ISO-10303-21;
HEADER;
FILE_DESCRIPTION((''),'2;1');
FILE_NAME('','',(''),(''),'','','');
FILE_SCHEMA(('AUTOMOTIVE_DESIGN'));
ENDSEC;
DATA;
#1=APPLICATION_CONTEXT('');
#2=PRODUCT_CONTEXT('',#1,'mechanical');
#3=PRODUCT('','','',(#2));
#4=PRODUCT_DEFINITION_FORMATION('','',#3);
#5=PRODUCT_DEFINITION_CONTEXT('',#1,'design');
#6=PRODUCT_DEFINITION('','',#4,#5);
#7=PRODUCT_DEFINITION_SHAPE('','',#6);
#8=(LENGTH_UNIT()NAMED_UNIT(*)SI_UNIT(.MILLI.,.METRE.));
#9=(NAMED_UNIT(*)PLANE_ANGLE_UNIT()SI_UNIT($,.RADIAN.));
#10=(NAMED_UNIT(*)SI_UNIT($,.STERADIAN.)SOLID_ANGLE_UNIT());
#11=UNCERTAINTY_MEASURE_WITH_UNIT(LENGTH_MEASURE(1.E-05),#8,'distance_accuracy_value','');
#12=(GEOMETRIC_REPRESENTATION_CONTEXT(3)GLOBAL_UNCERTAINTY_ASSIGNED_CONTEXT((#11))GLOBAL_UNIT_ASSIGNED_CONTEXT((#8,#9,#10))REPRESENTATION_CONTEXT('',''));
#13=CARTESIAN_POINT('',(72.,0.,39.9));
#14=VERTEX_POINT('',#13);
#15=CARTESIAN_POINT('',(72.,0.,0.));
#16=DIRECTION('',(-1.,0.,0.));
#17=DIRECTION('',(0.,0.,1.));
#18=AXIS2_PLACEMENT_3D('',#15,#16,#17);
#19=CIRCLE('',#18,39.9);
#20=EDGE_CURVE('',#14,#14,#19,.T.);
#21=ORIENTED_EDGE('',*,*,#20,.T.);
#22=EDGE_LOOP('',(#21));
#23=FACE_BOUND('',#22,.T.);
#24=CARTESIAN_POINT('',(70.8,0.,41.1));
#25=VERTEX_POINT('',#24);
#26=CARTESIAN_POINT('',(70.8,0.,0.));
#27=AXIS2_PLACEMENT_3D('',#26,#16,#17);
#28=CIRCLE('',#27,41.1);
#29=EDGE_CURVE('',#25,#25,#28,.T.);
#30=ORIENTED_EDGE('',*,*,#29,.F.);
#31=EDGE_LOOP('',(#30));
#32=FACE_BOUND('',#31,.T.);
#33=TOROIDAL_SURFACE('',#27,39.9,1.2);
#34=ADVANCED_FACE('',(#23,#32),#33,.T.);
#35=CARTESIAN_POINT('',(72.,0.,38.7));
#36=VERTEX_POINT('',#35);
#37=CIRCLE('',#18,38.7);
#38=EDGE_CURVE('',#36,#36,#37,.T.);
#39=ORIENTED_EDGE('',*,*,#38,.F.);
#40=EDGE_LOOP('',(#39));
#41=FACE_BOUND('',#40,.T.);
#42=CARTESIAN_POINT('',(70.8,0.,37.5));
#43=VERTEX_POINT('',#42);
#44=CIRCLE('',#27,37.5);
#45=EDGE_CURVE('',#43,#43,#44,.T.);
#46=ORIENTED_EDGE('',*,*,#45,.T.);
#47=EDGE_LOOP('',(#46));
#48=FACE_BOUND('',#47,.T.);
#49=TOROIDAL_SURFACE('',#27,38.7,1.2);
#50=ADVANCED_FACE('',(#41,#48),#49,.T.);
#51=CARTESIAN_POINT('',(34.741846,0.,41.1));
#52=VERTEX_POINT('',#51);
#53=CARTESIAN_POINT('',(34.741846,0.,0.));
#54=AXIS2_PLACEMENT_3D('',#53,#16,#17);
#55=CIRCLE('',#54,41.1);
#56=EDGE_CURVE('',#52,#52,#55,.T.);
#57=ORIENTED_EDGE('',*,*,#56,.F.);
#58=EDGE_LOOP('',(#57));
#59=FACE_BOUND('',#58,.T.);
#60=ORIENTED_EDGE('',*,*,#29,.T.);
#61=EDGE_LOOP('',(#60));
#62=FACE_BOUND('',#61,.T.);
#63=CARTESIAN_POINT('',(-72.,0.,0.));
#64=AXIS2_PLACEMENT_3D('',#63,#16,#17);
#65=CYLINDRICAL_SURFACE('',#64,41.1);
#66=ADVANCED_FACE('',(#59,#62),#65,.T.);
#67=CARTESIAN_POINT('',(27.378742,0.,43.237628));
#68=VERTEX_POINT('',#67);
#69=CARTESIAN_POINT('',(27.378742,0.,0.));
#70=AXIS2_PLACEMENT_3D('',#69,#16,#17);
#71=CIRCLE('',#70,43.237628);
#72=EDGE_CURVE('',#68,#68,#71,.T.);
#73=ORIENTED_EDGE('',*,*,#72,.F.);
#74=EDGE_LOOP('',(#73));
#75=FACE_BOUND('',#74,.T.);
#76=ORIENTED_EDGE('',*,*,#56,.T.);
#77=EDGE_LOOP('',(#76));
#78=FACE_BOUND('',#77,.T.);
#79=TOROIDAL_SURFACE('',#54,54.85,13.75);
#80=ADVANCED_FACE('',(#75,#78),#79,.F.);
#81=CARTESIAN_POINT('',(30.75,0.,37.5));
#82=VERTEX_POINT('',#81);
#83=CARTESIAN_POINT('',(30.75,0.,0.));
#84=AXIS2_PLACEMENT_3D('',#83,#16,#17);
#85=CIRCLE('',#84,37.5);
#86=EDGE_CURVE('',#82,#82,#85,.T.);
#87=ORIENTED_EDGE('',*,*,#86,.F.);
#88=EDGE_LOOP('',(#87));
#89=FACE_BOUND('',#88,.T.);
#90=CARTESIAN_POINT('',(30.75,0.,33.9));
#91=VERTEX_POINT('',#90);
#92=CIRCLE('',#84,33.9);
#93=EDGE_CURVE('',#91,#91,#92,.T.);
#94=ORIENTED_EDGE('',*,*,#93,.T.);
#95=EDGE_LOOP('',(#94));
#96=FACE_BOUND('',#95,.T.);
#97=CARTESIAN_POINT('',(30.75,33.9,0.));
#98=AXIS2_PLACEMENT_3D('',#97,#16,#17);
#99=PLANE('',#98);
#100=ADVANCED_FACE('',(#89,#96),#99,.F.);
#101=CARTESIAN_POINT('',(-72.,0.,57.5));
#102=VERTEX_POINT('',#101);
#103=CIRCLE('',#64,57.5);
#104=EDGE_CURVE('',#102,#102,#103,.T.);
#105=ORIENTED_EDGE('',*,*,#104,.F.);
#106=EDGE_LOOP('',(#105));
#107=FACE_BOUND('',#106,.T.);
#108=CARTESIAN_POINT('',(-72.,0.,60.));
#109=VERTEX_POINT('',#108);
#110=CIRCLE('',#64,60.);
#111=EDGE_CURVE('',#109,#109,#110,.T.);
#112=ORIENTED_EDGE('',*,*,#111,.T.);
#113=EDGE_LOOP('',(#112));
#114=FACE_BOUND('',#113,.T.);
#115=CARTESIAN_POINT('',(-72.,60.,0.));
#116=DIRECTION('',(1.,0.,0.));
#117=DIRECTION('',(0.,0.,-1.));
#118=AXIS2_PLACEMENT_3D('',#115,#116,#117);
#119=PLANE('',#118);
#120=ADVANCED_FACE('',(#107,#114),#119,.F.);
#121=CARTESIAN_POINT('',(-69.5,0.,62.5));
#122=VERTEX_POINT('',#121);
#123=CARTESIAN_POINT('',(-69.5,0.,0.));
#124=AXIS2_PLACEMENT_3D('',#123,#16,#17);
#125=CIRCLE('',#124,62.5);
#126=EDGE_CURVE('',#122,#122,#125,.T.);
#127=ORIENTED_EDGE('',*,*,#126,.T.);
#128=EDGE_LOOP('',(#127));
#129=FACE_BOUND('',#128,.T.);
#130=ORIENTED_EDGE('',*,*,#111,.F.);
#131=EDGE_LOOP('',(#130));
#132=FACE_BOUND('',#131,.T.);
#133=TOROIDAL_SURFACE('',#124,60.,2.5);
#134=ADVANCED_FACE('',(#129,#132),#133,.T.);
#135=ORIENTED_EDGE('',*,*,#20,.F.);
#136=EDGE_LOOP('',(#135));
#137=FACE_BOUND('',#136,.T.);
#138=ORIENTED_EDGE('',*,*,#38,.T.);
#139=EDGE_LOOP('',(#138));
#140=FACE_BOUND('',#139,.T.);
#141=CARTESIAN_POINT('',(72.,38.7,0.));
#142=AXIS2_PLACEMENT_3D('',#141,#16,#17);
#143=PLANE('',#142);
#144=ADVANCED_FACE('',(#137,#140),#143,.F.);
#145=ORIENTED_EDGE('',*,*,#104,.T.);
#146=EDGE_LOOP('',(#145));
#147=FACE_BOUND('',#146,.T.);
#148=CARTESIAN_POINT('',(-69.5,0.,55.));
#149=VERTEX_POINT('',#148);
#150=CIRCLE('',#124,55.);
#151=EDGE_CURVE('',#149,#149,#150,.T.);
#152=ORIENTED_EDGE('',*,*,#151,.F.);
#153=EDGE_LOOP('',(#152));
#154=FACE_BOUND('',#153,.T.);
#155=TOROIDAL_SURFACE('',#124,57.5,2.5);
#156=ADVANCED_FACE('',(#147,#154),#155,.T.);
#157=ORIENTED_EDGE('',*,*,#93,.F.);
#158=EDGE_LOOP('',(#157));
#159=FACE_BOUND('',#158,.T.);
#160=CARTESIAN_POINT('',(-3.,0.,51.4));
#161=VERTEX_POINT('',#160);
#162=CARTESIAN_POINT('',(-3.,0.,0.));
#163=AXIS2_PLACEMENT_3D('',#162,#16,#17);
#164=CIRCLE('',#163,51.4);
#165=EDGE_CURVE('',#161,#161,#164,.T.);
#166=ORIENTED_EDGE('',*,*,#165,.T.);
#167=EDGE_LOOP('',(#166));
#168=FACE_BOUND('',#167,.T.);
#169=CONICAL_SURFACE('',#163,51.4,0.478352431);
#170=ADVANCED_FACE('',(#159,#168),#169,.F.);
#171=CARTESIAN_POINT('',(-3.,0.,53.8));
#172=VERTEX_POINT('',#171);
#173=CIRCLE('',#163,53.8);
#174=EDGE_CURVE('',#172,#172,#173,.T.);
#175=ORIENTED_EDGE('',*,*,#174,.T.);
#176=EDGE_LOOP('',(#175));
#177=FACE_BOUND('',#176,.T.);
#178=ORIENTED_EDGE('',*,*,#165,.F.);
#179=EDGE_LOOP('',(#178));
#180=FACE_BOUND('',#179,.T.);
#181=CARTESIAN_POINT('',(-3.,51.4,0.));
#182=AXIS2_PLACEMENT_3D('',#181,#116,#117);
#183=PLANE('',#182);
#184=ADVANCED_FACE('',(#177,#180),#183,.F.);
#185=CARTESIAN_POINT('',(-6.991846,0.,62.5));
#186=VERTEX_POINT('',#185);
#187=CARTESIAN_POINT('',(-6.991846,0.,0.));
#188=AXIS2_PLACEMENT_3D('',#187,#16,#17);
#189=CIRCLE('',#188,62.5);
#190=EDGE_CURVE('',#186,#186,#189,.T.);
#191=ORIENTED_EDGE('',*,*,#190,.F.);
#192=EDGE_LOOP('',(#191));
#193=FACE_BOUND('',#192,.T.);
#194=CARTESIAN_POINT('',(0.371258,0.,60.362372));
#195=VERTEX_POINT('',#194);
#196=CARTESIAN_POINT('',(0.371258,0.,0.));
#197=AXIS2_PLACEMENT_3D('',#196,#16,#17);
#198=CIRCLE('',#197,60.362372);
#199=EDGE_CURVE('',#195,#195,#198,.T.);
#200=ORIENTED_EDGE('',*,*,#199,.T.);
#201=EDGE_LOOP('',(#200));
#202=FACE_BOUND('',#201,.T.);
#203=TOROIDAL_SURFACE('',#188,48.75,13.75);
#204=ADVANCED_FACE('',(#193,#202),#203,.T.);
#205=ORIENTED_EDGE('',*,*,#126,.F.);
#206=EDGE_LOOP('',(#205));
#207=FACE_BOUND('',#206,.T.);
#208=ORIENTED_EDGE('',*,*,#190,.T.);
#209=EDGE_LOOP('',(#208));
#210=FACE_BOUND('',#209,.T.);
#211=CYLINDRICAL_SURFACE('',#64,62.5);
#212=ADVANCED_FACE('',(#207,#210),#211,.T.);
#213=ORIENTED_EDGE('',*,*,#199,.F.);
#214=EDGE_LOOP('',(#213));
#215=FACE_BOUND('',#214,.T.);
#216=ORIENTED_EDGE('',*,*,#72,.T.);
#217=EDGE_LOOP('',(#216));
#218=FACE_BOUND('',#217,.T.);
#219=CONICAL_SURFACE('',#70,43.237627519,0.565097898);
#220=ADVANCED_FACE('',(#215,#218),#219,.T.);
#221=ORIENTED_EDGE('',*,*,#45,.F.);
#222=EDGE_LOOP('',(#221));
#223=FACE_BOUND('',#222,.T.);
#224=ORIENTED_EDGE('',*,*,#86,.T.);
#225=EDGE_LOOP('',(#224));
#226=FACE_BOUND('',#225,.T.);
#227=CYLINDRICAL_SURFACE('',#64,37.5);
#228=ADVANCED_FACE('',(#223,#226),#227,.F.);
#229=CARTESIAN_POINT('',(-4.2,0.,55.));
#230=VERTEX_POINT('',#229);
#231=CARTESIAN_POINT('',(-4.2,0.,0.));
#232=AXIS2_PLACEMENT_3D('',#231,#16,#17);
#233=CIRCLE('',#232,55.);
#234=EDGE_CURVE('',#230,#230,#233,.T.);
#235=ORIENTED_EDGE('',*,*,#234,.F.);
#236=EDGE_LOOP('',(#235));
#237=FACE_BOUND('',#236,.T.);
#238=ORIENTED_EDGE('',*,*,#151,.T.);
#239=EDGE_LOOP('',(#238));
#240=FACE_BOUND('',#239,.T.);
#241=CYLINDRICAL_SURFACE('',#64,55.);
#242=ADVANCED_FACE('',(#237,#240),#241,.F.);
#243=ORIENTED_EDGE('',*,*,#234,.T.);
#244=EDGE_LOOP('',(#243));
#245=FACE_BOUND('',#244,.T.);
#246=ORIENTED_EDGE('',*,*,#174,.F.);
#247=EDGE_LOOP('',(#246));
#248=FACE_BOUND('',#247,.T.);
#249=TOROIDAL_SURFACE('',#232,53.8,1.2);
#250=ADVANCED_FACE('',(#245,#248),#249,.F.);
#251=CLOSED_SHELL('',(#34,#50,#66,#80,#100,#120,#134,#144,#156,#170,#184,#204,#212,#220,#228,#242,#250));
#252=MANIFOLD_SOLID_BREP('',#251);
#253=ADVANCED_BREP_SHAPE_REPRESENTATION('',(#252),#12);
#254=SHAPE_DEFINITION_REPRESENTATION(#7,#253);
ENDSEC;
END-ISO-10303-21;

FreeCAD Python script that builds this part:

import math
import FreeCAD as App
import Part
import Sketcher
Q = App.Units.Quantity

doc = App.newDocument("Part")
body = doc.addObject("PartDesign::Body", "Body")

# Sketch on XY plane
sketch1 = doc.addObject("Sketcher::SketchObject", "Sketch")
body.addObject(sketch1)
sketch1.AttachmentSupport = (doc.XY_Plane, [""])
sketch1.MapMode = "FlatFace"
sketch1.addGeometry([
    Part.LineSegment(App.Vector(-72, 60, 0), App.Vector(-72, 57.5, 0)),  # 0
    Part.ArcOfCircle(Part.Circle(App.Vector(-69.5, 57.5, 0), App.Vector(0, 0, 1), 2.5), math.radians(180), math.radians(270)),  # 1
    Part.LineSegment(App.Vector(-69.5, 55, 0), App.Vector(-4.2, 55, 0)),  # 2
    Part.ArcOfCircle(Part.Circle(App.Vector(-4.2, 53.8, 0), App.Vector(0, 0, 1), 1.2), math.radians(0), math.radians(90)),  # 3
    Part.LineSegment(App.Vector(-3, 53.8, 0), App.Vector(-3, 51.4, 0)),  # 4
    Part.LineSegment(App.Vector(-3, 51.4, 0), App.Vector(30.75, 33.9, 0)),  # 5
    Part.LineSegment(App.Vector(30.75, 33.9, 0), App.Vector(30.75, 37.5, 0)),  # 6
    Part.LineSegment(App.Vector(30.75, 37.5, 0), App.Vector(70.8, 37.5, 0)),  # 7
    Part.ArcOfCircle(Part.Circle(App.Vector(70.8, 38.7, 0), App.Vector(0, 0, 1), 1.2), math.radians(-90), math.radians(0)),  # 8
    Part.LineSegment(App.Vector(72, 38.7, 0), App.Vector(72, 39.9, 0)),  # 9
    Part.ArcOfCircle(Part.Circle(App.Vector(70.8, 39.9, 0), App.Vector(0, 0, 1), 1.2), math.radians(0), math.radians(90)),  # 10
    Part.LineSegment(App.Vector(70.8, 41.1, 0), App.Vector(34.741846, 41.1, 0)),  # 11
    Part.ArcOfCircle(Part.Circle(App.Vector(34.741846, 54.85, 0), App.Vector(0, 0, 1), 13.75), math.radians(-122.377725), math.radians(-90)),  # 12
    Part.LineSegment(App.Vector(27.378742, 43.237628, 0), App.Vector(0.371258, 60.362372, 0)),  # 13
    Part.ArcOfCircle(Part.Circle(App.Vector(-6.991846, 48.75, 0), App.Vector(0, 0, 1), 13.75), math.radians(57.622275), math.radians(90)),  # 14
    Part.LineSegment(App.Vector(-6.991846, 62.5, 0), App.Vector(-69.5, 62.5, 0)),  # 15
    Part.ArcOfCircle(Part.Circle(App.Vector(-69.5, 60, 0), App.Vector(0, 0, 1), 2.5), math.radians(90), math.radians(180)),  # 16
], False)
sketch1.addConstraint([
    Sketcher.Constraint("Tangent", 0, 2, 1, 1),
    Sketcher.Constraint("Tangent", 1, 2, 2, 1),
    Sketcher.Constraint("Tangent", 2, 2, 3, 2),
    Sketcher.Constraint("Tangent", 3, 1, 4, 1),
    Sketcher.Constraint("Coincident", 4, 2, 5, 1),
    Sketcher.Constraint("Coincident", 5, 2, 6, 1),
    Sketcher.Constraint("Coincident", 6, 2, 7, 1),
    Sketcher.Constraint("Tangent", 7, 2, 8, 1),
    Sketcher.Constraint("Tangent", 8, 2, 9, 1),
    Sketcher.Constraint("Tangent", 9, 2, 10, 1),
    Sketcher.Constraint("Tangent", 10, 2, 11, 1),
    Sketcher.Constraint("Tangent", 11, 2, 12, 2),
    Sketcher.Constraint("Tangent", 12, 1, 13, 1),
    Sketcher.Constraint("Tangent", 13, 2, 14, 1),
    Sketcher.Constraint("Tangent", 14, 2, 15, 1),
    Sketcher.Constraint("Tangent", 15, 2, 16, 1),
    Sketcher.Constraint("Tangent", 16, 2, 0, 1),
    Sketcher.Constraint("Vertical", 0),
    Sketcher.Constraint("Horizontal", 2),
    Sketcher.Constraint("Vertical", 4),
    Sketcher.Constraint("Vertical", 6),
    Sketcher.Constraint("Horizontal", 7),
    Sketcher.Constraint("Vertical", 9),
    Sketcher.Constraint("Horizontal", 11),
    Sketcher.Constraint("Horizontal", 15),
    Sketcher.Constraint("Equal", 3, 8),
    Sketcher.Constraint("Equal", 8, 10),
    Sketcher.Constraint("Equal", 12, 14),
    Sketcher.Constraint("Equal", 1, 16),
    Sketcher.Constraint("Radius", 1, Q("2.5 mm")),
    Sketcher.Constraint("Radius", 3, Q("1.2 mm")),
    Sketcher.Constraint("Radius", 12, Q("13.75 mm")),
    Sketcher.Constraint("DistanceX", 2, 1, 2, 2, Q("65.3 mm")),
    Sketcher.Constraint("DistanceY", 0, 2, 0, 1, Q("2.5 mm")),
    Sketcher.Constraint("DistanceY", 4, 2, 4, 1, Q("2.4 mm")),
    Sketcher.Constraint("DistanceY", 6, 1, 6, 2, Q("3.6 mm")),
    Sketcher.Constraint("DistanceY", 9, 1, 9, 2, Q("1.2 mm")),
    Sketcher.Constraint("DistanceY", -1, 1, 16, 3, Q("60 mm")),
    Sketcher.Constraint("DistanceX", 0, 2, -1, 1, Q("72 mm")),
    Sketcher.Constraint("DistanceX", -1, 1, 8, 2, Q("72 mm")),
    Sketcher.Constraint("DistanceX", 7, 1, 7, 2, Q("40.05 mm")),
    Sketcher.Constraint("DistanceY", -1, 1, 8, 3, Q("38.7 mm")),
    Sketcher.Constraint("Distance", 13, Q("31.979072 mm")),
    Sketcher.Constraint("DistanceX", 11, 2, 11, 1, Q("36.058154 mm")),
])
revolution = doc.addObject("PartDesign::Revolution", "Revolution")
body.addObject(revolution)
revolution.Profile = sketch1
revolution.ReferenceAxis = (sketch1, ["H_Axis"])
revolution.Angle = 360

doc.recompute()
